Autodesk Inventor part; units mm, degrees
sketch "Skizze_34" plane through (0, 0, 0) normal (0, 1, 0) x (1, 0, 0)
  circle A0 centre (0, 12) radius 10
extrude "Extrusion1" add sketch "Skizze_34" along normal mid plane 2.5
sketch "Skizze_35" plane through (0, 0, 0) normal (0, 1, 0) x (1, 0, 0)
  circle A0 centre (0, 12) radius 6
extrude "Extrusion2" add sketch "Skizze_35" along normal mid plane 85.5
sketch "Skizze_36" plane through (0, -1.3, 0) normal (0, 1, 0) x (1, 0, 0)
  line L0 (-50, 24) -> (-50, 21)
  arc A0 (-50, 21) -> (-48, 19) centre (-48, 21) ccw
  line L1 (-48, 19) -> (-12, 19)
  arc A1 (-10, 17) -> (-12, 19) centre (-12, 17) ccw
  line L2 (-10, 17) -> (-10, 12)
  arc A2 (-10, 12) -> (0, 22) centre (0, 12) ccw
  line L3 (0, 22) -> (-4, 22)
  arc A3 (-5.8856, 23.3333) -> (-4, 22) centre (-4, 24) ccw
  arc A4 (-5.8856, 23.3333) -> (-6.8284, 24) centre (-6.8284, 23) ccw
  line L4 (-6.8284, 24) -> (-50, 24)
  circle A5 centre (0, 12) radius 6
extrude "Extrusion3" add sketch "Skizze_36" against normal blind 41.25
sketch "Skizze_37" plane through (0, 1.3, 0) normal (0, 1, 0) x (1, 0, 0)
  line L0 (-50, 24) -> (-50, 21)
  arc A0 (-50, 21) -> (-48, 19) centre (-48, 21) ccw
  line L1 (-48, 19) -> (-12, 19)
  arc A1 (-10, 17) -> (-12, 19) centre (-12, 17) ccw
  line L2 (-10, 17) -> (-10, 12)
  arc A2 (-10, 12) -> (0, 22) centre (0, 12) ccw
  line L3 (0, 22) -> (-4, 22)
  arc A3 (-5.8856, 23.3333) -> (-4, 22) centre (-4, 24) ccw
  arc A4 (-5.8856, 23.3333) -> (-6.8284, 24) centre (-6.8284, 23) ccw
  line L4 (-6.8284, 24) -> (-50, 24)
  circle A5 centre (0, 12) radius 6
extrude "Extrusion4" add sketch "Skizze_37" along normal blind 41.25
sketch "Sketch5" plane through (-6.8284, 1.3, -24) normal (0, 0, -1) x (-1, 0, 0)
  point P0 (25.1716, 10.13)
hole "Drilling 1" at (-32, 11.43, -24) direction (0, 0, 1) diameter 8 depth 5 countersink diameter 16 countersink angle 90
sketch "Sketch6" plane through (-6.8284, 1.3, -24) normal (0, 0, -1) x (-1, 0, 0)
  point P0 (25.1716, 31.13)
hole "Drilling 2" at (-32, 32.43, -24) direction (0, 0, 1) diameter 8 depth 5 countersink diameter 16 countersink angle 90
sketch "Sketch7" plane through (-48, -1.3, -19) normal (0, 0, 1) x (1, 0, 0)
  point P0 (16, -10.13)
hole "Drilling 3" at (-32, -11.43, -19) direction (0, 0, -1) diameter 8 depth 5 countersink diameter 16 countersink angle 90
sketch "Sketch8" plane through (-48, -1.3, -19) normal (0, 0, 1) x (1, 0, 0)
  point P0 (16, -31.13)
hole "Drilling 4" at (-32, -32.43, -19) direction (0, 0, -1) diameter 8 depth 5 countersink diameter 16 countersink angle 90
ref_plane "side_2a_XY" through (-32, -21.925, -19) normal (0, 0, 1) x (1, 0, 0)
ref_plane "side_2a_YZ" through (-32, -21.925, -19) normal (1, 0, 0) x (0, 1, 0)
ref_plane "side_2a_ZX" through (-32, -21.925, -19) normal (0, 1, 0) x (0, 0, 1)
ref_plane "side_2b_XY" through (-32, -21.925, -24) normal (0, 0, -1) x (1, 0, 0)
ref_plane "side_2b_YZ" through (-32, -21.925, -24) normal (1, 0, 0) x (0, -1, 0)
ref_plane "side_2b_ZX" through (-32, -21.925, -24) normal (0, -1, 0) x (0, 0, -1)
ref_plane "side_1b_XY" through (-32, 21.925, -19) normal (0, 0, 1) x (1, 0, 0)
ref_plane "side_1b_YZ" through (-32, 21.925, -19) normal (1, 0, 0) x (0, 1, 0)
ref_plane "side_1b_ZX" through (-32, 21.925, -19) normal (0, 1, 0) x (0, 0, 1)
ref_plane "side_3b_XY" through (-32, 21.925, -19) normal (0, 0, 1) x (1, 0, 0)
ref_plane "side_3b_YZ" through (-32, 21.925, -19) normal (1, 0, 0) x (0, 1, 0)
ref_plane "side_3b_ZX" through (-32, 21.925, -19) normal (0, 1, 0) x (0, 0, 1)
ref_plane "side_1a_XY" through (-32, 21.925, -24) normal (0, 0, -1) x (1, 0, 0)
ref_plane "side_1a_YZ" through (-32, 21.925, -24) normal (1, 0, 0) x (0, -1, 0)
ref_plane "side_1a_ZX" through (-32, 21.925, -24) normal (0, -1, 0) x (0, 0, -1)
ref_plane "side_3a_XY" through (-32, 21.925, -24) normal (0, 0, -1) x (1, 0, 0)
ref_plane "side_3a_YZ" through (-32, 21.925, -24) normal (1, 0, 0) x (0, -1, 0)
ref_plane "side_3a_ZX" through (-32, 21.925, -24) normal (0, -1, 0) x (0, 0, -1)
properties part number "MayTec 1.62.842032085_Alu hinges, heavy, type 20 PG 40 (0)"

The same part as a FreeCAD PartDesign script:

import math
import FreeCAD as App
import Part
import Sketcher

V = App.Vector
Q = App.Units.Quantity

doc = App.newDocument("Part")
body = doc.addObject("PartDesign::Body", "Body")

sketch1 = body.newObject("Sketcher::SketchObject", "Sketch")
sketch1.AttachmentSupport = (doc.getObject("XZ_Plane"), [""])
sketch1.MapMode = "FlatFace"
sketch1.addGeometry(Part.Circle(V(0, -12, 0), V(0, 0, 1), 10), False)
sketch1.addConstraint(Sketcher.Constraint("PointOnObject", 0, 3, -2))
sketch1.addConstraint(Sketcher.Constraint("Diameter", 0, Q("20 mm")))
sketch1.addConstraint(Sketcher.Constraint("DistanceY", 0, 3, -1, 1, Q("12 mm")))
pad1 = body.newObject("PartDesign::Pad", "Pad")
pad1.Profile = sketch1
pad1.Length = 2.5
pad1.Midplane = True

sketch2 = body.newObject("Sketcher::SketchObject", "Sketch001")
sketch2.AttachmentSupport = (doc.getObject("XZ_Plane"), [""])
sketch2.MapMode = "FlatFace"
sketch2.addGeometry(Part.Circle(V(0, -12, 0), V(0, 0, 1), 6), False)
sketch2.addConstraint(Sketcher.Constraint("PointOnObject", 0, 3, -2))
sketch2.addConstraint(Sketcher.Constraint("Diameter", 0, Q("12 mm")))
sketch2.addConstraint(Sketcher.Constraint("DistanceY", 0, 3, -1, 1, Q("12 mm")))
pad2 = body.newObject("PartDesign::Pad", "Pad001")
pad2.Profile = sketch2
pad2.Length = 85.5
pad2.Midplane = True

sketch3 = body.newObject("Sketcher::SketchObject", "Sketch002")
sketch3.AttachmentSupport = (doc.getObject("XZ_Plane"), [""])
sketch3.MapMode = "FlatFace"
sketch3.AttachmentOffset = App.Placement(V(0, 0, 1.3), App.Rotation())
sketch3.addGeometry(Part.LineSegment(V(-6.8, -24, 0), V(-50, -24, 0)), False)
sketch3.addGeometry(Part.LineSegment(V(-50, -24, 0), V(-50, -21, 0)), False)
sketch3.addGeometry(Part.ArcOfCircle(Part.Circle(V(-48, -21, 0), V(0, 0, 1), 2), math.radians(90), math.radians(180)), False)
sketch3.addGeometry(Part.LineSegment(V(-48, -19, 0), V(-12, -19, 0)), False)
sketch3.addGeometry(Part.ArcOfCircle(Part.Circle(V(-12, -17, 0), V(0, 0, 1), 2), math.radians(-90), math.radians(0)), False)
sketch3.addGeometry(Part.LineSegment(V(-10, -17, 0), V(-10, -12, 0)), False)
sketch3.addGeometry(Part.ArcOfCircle(Part.Circle(V(0, -12, 0), V(0, 0, 1), 10), math.radians(-90), math.radians(180)), False)
sketch3.addGeometry(Part.LineSegment(V(0, -22, 0), V(-4, -22, 0)), False)
sketch3.addGeometry(Part.ArcOfCircle(Part.Circle(V(-4, -24, 0), V(0, 0, 1), 2), math.radians(90), math.radians(161)), False)
sketch3.addGeometry(Part.ArcOfCircle(Part.Circle(V(-6.8, -23, 0), V(0, 0, 1), 1), math.radians(-90), math.radians(-19)), False)
sketch3.addGeometry(Part.Circle(V(0, -12, 0), V(0, 0, 1), 6), False)
sketch3.addConstraint(Sketcher.Constraint("Coincident", 0, 2, 1, 1))
sketch3.addConstraint(Sketcher.Constraint("Tangent", 1, 2, 2, 2))
sketch3.addConstraint(Sketcher.Constraint("Tangent", 2, 1, 3, 1))
sketch3.addConstraint(Sketcher.Constraint("Tangent", 3, 2, 4, 1))
sketch3.addConstraint(Sketcher.Constraint("Tangent", 4, 2, 5, 1))
sketch3.addConstraint(Sketcher.Constraint("Tangent", 5, 2, 6, 2))
sketch3.addConstraint(Sketcher.Constraint("Tangent", 6, 1, 7, 1))
sketch3.addConstraint(Sketcher.Constraint("Tangent", 7, 2, 8, 1))
sketch3.addConstraint(Sketcher.Constraint("Tangent", 8, 2, 9, 2))
sketch3.addConstraint(Sketcher.Constraint("Tangent", 9, 1, 0, 1))
sketch3.addConstraint(Sketcher.Constraint("Horizontal", 0))
sketch3.addConstraint(Sketcher.Constraint("Vertical", 1))
sketch3.addConstraint(Sketcher.Constraint("Horizontal", 3))
sketch3.addConstraint(Sketcher.Constraint("Vertical", 5))
sketch3.addConstraint(Sketcher.Constraint("Horizontal", 7))
sketch3.addConstraint(Sketcher.Constraint("Coincident", 10, 3, 6, 3))
sketch3.addConstraint(Sketcher.Constraint("Equal", 2, 4))
sketch3.addConstraint(Sketcher.Constraint("Equal", 4, 8))
sketch3.addConstraint(Sketcher.Constraint("PointOnObject", 6, 3, -2))
sketch3.addConstraint(Sketcher.Constraint("Horizontal", 8, 3, 0, 2))
sketch3.addConstraint(Sketcher.Constraint("Diameter", 10, Q("12 mm")))
sketch3.addConstraint(Sketcher.Constraint("Radius", 2, Q("2 mm")))
sketch3.addConstraint(Sketcher.Constraint("Radius", 6, Q("10 mm")))
sketch3.addConstraint(Sketcher.Constraint("Radius", 9, Q("1 mm")))
sketch3.addConstraint(Sketcher.Constraint("DistanceX", 3, 1, 3, 2, Q("36 mm")))
sketch3.addConstraint(Sketcher.Constraint("DistanceX", 7, 2, 7, 1, Q("4 mm")))
sketch3.addConstraint(Sketcher.Constraint("DistanceY", 1, 1, 1, 2, Q("3 mm")))
sketch3.addConstraint(Sketcher.Constraint("DistanceY", 2, 3, -1, 1, Q("21 mm")))
pad3 = body.newObject("PartDesign::Pad", "Pad002")
pad3.Profile = sketch3
pad3.Length = 41.25

sketch4 = body.newObject("Sketcher::SketchObject", "Sketch003")
sketch4.AttachmentSupport = (doc.getObject("XZ_Plane"), [""])
sketch4.MapMode = "FlatFace"
sketch4.AttachmentOffset = App.Placement(V(0, 0, -1.3), App.Rotation())
sketch4.addGeometry(Part.LineSegment(V(-6.8, -24, 0), V(-50, -24, 0)), False)
sketch4.addGeometry(Part.LineSegment(V(-50, -24, 0), V(-50, -21, 0)), False)
sketch4.addGeometry(Part.ArcOfCircle(Part.Circle(V(-48, -21, 0), V(0, 0, 1), 2), math.radians(90), math.radians(180)), False)
sketch4.addGeometry(Part.LineSegment(V(-48, -19, 0), V(-12, -19, 0)), False)
sketch4.addGeometry(Part.ArcOfCircle(Part.Circle(V(-12, -17, 0), V(0, 0, 1), 2), math.radians(-90), math.radians(0)), False)
sketch4.addGeometry(Part.LineSegment(V(-10, -17, 0), V(-10, -12, 0)), False)
sketch4.addGeometry(Part.ArcOfCircle(Part.Circle(V(0, -12, 0), V(0, 0, 1), 10), math.radians(-90), math.radians(180)), False)
sketch4.addGeometry(Part.LineSegment(V(0, -22, 0), V(-4, -22, 0)), False)
sketch4.addGeometry(Part.ArcOfCircle(Part.Circle(V(-4, -24, 0), V(0, 0, 1), 2), math.radians(90), math.radians(161)), False)
sketch4.addGeometry(Part.ArcOfCircle(Part.Circle(V(-6.8, -23, 0), V(0, 0, 1), 1), math.radians(-90), math.radians(-19)), False)
sketch4.addGeometry(Part.Circle(V(0, -12, 0), V(0, 0, 1), 6), False)
sketch4.addConstraint(Sketcher.Constraint("Coincident", 0, 2, 1, 1))
sketch4.addConstraint(Sketcher.Constraint("Tangent", 1, 2, 2, 2))
sketch4.addConstraint(Sketcher.Constraint("Tangent", 2, 1, 3, 1))
sketch4.addConstraint(Sketcher.Constraint("Tangent", 3, 2, 4, 1))
sketch4.addConstraint(Sketcher.Constraint("Tangent", 4, 2, 5, 1))
sketch4.addConstraint(Sketcher.Constraint("Tangent", 5, 2, 6, 2))
sketch4.addConstraint(Sketcher.Constraint("Tangent", 6, 1, 7, 1))
sketch4.addConstraint(Sketcher.Constraint("Tangent", 7, 2, 8, 1))
sketch4.addConstraint(Sketcher.Constraint("Tangent", 8, 2, 9, 2))
sketch4.addConstraint(Sketcher.Constraint("Tangent", 9, 1, 0, 1))
sketch4.addConstraint(Sketcher.Constraint("Horizontal", 0))
sketch4.addConstraint(Sketcher.Constraint("Vertical", 1))
sketch4.addConstraint(Sketcher.Constraint("Horizontal", 3))
sketch4.addConstraint(Sketcher.Constraint("Vertical", 5))
sketch4.addConstraint(Sketcher.Constraint("Horizontal", 7))
sketch4.addConstraint(Sketcher.Constraint("Coincident", 10, 3, 6, 3))
sketch4.addConstraint(Sketcher.Constraint("Equal", 2, 4))
sketch4.addConstraint(Sketcher.Constraint("Equal", 4, 8))
sketch4.addConstraint(Sketcher.Constraint("PointOnObject", 6, 3, -2))
sketch4.addConstraint(Sketcher.Constraint("Horizontal", 8, 3, 0, 2))
sketch4.addConstraint(Sketcher.Constraint("Diameter", 10, Q("12 mm")))
sketch4.addConstraint(Sketcher.Constraint("Radius", 2, Q("2 mm")))
sketch4.addConstraint(Sketcher.Constraint("Radius", 6, Q("10 mm")))
sketch4.addConstraint(Sketcher.Constraint("Radius", 9, Q("1 mm")))
sketch4.addConstraint(Sketcher.Constraint("DistanceX", 3, 1, 3, 2, Q("36 mm")))
sketch4.addConstraint(Sketcher.Constraint("DistanceX", 7, 2, 7, 1, Q("4 mm")))
sketch4.addConstraint(Sketcher.Constraint("DistanceY", 1, 1, 1, 2, Q("3 mm")))
sketch4.addConstraint(Sketcher.Constraint("DistanceY", 2, 3, -1, 1, Q("21 mm")))
pad4 = body.newObject("PartDesign::Pad", "Pad003")
pad4.Profile = sketch4
pad4.Length = 41.25
pad4.Reversed = True

sketch5 = body.newObject("Sketcher::SketchObject", "Sketch004")
sketch5.AttachmentSupport = (doc.getObject("XY_Plane"), [""])
sketch5.MapMode = "FlatFace"
sketch5.AttachmentOffset = App.Placement(V(0, 0, -24), App.Rotation())
sketch5.addGeometry(Part.Circle(V(-32, 11.4, 0), V(0, 0, 1), 4), False)
sketch5.addConstraint(Sketcher.Constraint("Diameter", 0, Q("8 mm")))
sketch5.addConstraint(Sketcher.Constraint("DistanceX", 0, 3, -1, 1, Q("32 mm")))
sketch5.addConstraint(Sketcher.Constraint("DistanceY", -1, 1, 0, 3, Q("11.43 mm")))
doc.recompute()
hole = body.newObject("PartDesign::Hole", "Hole")
hole.Profile = sketch5
hole.ThreadType = "None"
hole.Diameter = 8
hole.DepthType = "Dimension"
hole.Depth = 5
hole.DrillPoint = "Flat"
hole.HoleCutType = "Countersink"
hole.HoleCutDiameter = 16
hole.HoleCutCountersinkAngle = 90
hole.Reversed = True

sketch6 = body.newObject("Sketcher::SketchObject", "Sketch005")
sketch6.AttachmentSupport = (doc.getObject("XY_Plane"), [""])
sketch6.MapMode = "FlatFace"
sketch6.AttachmentOffset = App.Placement(V(0, 0, -24), App.Rotation())
sketch6.addGeometry(Part.Circle(V(-32, 32.4, 0), V(0, 0, 1), 4), False)
sketch6.addConstraint(Sketcher.Constraint("Diameter", 0, Q("8 mm")))
sketch6.addConstraint(Sketcher.Constraint("DistanceX", 0, 3, -1, 1, Q("32 mm")))
sketch6.addConstraint(Sketcher.Constraint("DistanceY", -1, 1, 0, 3, Q("32.43 mm")))
doc.recompute()
hole2 = body.newObject("PartDesign::Hole", "Hole001")
hole2.Profile = sketch6
hole2.ThreadType = "None"
hole2.Diameter = 8
hole2.DepthType = "Dimension"
hole2.Depth = 5
hole2.DrillPoint = "Flat"
hole2.HoleCutType = "Countersink"
hole2.HoleCutDiameter = 16
hole2.HoleCutCountersinkAngle = 90
hole2.Reversed = True

sketch7 = body.newObject("Sketcher::SketchObject", "Sketch006")
sketch7.AttachmentSupport = (doc.getObject("XY_Plane"), [""])
sketch7.MapMode = "FlatFace"
sketch7.AttachmentOffset = App.Placement(V(0, 0, -19), App.Rotation())
sketch7.addGeometry(Part.Circle(V(-32, -11.4, 0), V(0, 0, 1), 4), False)
sketch7.addConstraint(Sketcher.Constraint("Diameter", 0, Q("8 mm")))
sketch7.addConstraint(Sketcher.Constraint("DistanceX", 0, 3, -1, 1, Q("32 mm")))
sketch7.addConstraint(Sketcher.Constraint("DistanceY", 0, 3, -1, 1, Q("11.43 mm")))
doc.recompute()
hole3 = body.newObject("PartDesign::Hole", "Hole002")
hole3.Profile = sketch7
hole3.ThreadType = "None"
hole3.Diameter = 8
hole3.DepthType = "Dimension"
hole3.Depth = 5
hole3.DrillPoint = "Flat"
hole3.HoleCutType = "Countersink"
hole3.HoleCutDiameter = 16
hole3.HoleCutCountersinkAngle = 90

sketch8 = body.newObject("Sketcher::SketchObject", "Sketch007")
sketch8.AttachmentSupport = (doc.getObject("XY_Plane"), [""])
sketch8.MapMode = "FlatFace"
sketch8.AttachmentOffset = App.Placement(V(0, 0, -19), App.Rotation())
sketch8.addGeometry(Part.Circle(V(-32, -32.4, 0), V(0, 0, 1), 4), False)
sketch8.addConstraint(Sketcher.Constraint("Diameter", 0, Q("8 mm")))
sketch8.addConstraint(Sketcher.Constraint("DistanceX", 0, 3, -1, 1, Q("32 mm")))
sketch8.addConstraint(Sketcher.Constraint("DistanceY", 0, 3, -1, 1, Q("32.43 mm")))
doc.recompute()
hole4 = body.newObject("PartDesign::Hole", "Hole003")
hole4.Profile = sketch8
hole4.ThreadType = "None"
hole4.Diameter = 8
hole4.DepthType = "Dimension"
hole4.Depth = 5
hole4.DrillPoint = "Flat"
hole4.HoleCutType = "Countersink"
hole4.HoleCutDiameter = 16
hole4.HoleCutCountersinkAngle = 90

doc.recompute()
